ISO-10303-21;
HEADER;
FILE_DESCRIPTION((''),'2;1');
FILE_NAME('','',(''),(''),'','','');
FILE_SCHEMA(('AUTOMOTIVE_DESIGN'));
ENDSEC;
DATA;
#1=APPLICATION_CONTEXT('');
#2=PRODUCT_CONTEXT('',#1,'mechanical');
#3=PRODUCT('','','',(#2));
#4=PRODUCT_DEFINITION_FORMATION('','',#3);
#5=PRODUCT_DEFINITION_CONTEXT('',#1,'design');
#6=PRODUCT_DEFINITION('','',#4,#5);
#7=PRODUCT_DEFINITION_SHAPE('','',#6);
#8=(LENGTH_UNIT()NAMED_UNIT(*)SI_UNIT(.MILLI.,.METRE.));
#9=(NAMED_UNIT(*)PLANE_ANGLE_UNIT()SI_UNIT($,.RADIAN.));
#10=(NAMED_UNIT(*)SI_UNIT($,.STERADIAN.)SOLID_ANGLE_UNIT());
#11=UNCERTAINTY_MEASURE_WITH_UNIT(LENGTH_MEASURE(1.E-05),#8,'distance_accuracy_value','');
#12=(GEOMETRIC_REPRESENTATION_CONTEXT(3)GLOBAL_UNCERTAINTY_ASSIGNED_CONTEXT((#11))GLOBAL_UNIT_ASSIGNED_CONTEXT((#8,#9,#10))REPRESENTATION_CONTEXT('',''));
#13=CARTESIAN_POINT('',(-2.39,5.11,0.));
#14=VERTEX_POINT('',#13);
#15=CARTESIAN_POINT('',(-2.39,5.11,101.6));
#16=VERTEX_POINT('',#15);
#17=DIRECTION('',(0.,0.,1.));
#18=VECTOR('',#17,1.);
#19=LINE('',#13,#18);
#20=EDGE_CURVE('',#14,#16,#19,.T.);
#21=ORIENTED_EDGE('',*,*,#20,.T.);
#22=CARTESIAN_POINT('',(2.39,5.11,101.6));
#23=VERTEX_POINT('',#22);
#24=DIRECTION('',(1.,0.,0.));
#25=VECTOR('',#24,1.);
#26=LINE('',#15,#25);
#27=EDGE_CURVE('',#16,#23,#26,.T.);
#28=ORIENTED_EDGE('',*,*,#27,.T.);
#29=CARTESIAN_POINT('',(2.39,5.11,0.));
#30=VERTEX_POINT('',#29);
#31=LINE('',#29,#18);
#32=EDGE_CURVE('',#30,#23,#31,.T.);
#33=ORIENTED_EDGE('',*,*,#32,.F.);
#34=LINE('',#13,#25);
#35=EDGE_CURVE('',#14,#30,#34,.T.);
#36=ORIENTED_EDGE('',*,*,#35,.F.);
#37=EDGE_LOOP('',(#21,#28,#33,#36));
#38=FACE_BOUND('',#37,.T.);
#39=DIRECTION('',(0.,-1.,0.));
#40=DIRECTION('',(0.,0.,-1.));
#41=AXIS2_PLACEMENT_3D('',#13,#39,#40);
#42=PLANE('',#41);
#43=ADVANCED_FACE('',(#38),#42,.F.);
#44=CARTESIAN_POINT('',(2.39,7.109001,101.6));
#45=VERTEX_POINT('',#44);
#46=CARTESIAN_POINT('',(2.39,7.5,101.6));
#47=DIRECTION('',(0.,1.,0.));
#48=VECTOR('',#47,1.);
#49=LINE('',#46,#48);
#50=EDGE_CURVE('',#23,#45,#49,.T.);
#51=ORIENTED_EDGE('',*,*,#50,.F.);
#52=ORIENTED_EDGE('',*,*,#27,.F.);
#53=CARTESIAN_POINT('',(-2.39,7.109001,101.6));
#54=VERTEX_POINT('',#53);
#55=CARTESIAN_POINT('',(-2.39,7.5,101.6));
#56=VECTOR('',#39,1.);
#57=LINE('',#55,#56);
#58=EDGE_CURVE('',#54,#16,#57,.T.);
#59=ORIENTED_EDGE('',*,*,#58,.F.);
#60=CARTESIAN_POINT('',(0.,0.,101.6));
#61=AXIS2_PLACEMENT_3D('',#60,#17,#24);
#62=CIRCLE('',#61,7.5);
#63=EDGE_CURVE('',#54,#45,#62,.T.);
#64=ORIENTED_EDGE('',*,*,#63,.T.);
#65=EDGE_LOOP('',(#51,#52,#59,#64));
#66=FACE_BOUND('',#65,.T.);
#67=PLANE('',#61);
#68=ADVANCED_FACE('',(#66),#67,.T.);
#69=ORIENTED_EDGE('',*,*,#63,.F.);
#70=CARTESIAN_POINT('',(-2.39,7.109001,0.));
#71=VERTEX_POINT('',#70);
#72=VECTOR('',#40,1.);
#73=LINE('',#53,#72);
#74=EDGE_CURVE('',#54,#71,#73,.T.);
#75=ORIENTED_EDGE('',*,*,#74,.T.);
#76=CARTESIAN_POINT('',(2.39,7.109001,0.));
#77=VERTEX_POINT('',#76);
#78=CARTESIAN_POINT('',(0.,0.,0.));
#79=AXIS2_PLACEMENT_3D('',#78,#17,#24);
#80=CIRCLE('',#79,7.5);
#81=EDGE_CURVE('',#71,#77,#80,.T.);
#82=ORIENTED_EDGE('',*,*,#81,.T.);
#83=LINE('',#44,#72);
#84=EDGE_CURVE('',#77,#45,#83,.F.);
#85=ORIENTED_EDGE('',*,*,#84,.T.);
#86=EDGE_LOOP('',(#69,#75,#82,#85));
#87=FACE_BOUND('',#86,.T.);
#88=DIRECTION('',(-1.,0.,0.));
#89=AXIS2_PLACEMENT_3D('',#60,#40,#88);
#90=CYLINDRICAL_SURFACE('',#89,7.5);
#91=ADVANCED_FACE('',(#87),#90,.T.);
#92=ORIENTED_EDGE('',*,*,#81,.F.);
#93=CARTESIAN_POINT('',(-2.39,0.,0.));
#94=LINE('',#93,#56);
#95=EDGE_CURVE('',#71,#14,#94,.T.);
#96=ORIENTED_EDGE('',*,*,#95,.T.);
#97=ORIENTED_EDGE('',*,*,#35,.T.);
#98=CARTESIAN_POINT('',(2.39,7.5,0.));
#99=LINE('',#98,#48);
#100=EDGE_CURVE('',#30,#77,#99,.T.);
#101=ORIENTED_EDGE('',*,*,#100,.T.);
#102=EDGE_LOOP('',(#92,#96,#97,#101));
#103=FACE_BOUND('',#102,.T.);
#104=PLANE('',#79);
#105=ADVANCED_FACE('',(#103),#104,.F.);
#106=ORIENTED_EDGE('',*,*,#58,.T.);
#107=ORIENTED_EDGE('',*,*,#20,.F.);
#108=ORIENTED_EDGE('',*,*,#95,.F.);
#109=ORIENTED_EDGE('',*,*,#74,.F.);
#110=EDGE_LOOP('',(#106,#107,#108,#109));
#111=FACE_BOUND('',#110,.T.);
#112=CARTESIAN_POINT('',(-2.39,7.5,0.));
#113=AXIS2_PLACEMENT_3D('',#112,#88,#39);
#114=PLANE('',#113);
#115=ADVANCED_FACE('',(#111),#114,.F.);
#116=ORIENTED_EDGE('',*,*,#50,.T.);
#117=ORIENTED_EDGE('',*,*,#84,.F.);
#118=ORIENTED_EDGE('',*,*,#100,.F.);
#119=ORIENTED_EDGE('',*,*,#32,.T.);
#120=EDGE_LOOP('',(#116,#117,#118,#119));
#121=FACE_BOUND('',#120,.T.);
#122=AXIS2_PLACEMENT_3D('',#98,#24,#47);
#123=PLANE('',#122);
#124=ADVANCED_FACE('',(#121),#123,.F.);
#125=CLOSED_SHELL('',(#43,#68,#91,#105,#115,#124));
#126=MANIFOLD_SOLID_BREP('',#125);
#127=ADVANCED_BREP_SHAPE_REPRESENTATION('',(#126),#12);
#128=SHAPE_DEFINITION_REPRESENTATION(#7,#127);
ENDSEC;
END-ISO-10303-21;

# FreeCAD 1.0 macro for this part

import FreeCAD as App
import Part
import Sketcher

V = App.Vector

doc = App.newDocument("Part")
body = doc.addObject("PartDesign::Body", "Body")

sketch1 = body.newObject("Sketcher::SketchObject", "Sketch")
sketch1.AttachmentSupport = (doc.getObject("XY_Plane"), [""])
sketch1.MapMode = "FlatFace"
sketch1.addGeometry(Part.Circle(V(0, 0, 0), V(0, 0, 1), 8), False)
sketch1.addConstraint([
    Sketcher.Constraint("Coincident", 0, 3, -1, 1),
    Sketcher.Constraint("Diameter", 0, 15.0),
])
pad1 = body.newObject("PartDesign::Pad", "Pad")
pad1.Profile = sketch1
pad1.Length = 101.6

sketch2 = body.newObject("Sketcher::SketchObject", "Sketch001")
sketch2.AttachmentSupport = (doc.getObject("XY_Plane"), [""])
sketch2.MapMode = "FlatFace"
sketch2.AttachmentOffset = App.Placement(V(0, 0, 101.6), App.Rotation())
sketch2.addGeometry([
    Part.LineSegment(V(-2.4, 7.5, 0), V(-2.4, 5.1, 0)),
    Part.LineSegment(V(-2.4, 5.1, 0), V(2.4, 5.1, 0)),
    Part.LineSegment(V(2.4, 5.1, 0), V(2.4, 7.5, 0)),
    Part.LineSegment(V(2.4, 7.5, 0), V(-2.4, 7.5, 0)),
], False)
sketch2.addConstraint([
    Sketcher.Constraint("Coincident", 0, 2, 1, 1),
    Sketcher.Constraint("Coincident", 1, 2, 2, 1),
    Sketcher.Constraint("Coincident", 2, 2, 3, 1),
    Sketcher.Constraint("Coincident", 3, 2, 0, 1),
    Sketcher.Constraint("Vertical", 0),
    Sketcher.Constraint("Horizontal", 1),
    Sketcher.Constraint("Vertical", 2),
    Sketcher.Constraint("Horizontal", 3),
    Sketcher.Constraint("DistanceX", 1, 1, 1, 2, 4.78),
    Sketcher.Constraint("DistanceY", 0, 2, 0, 1, 2.39),
    Sketcher.Constraint("DistanceY", -1, 1, 2, 2, 7.5),
    Sketcher.Constraint("DistanceX", 0, 2, -1, 1, 2.39),
])
pocket1 = body.newObject("PartDesign::Pocket", "Pocket")
pocket1.Profile = sketch2
pocket1.Type = "ThroughAll"

doc.recompute()
